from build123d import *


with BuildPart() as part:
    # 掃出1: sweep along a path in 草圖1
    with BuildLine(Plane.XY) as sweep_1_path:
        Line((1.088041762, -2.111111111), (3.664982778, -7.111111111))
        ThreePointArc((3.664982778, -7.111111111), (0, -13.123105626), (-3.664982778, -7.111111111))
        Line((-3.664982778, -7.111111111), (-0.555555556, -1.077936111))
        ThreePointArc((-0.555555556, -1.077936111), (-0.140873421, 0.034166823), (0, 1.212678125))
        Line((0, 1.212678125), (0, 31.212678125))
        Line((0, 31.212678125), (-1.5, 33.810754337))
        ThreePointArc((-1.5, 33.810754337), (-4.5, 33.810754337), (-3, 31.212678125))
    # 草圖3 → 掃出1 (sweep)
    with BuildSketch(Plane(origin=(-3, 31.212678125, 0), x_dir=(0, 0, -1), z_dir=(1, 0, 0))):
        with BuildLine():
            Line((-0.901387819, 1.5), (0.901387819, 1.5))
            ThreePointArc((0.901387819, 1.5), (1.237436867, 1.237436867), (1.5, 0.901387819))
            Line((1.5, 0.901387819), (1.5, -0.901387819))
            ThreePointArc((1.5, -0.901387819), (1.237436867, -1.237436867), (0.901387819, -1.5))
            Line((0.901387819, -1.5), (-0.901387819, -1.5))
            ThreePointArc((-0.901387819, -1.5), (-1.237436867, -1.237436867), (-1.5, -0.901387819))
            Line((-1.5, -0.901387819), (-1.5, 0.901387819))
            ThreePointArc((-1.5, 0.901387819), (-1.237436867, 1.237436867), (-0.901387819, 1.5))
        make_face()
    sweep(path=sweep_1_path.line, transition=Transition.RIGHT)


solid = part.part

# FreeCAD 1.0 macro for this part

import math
import FreeCAD as App
import Part
import Sketcher
from FreeCAD import Vector
Q = App.Units.Quantity

doc = App.newDocument("Part")
params = doc.addObject("Spreadsheet::Sheet", "Params")
for row, (alias, value) in enumerate([
    ("sketch1_radius", "1.75 mm"),
    ("sketch2_radius", "5 mm"),
    ("sketch2_height", "30 mm"),
    ("sketch2_length", "3 mm"),
    ("sketch2_height2", "5 mm"),
], start=1):
    params.set(f"A{row}", alias)
    params.set(f"B{row}", "=" + value)
    params.setAlias(f"B{row}", alias)

body = doc.addObject("PartDesign::Body", "Body")

# Sketch on YZ plane
sketch1 = body.newObject("Sketcher::SketchObject", "Sketch")
sketch1.AttachmentSupport = (doc.getObject("YZ_Plane"), [""])
sketch1.MapMode = "FlatFace"
sketch1.AttachmentOffset = App.Placement(Vector(0, 0, -3), App.Rotation())
sketch1.addGeometry([
    Part.LineSegment(Vector(32.712678, -0.901388, 0), Vector(32.712678, 0.901388, 0)),  # 0
    Part.ArcOfCircle(Part.Circle(Vector(31.212678, 0, 0), Vector(0, 0, 1), 1.75), math.radians(31.002719), math.radians(58.997281)),  # 1
    Part.LineSegment(Vector(32.114066, 1.5, 0), Vector(30.31129, 1.5, 0)),  # 2
    Part.ArcOfCircle(Part.Circle(Vector(31.212678, 0, 0), Vector(0, 0, 1), 1.75), math.radians(121.002719), math.radians(148.997281)),  # 3
    Part.LineSegment(Vector(29.712678, 0.901388, 0), Vector(29.712678, -0.901388, 0)),  # 4
    Part.ArcOfCircle(Part.Circle(Vector(31.212678, 0, 0), Vector(0, 0, 1), 1.75), math.radians(-148.997281), math.radians(-121.002719)),  # 5
    Part.LineSegment(Vector(30.31129, -1.5, 0), Vector(32.114066, -1.5, 0)),  # 6
    Part.ArcOfCircle(Part.Circle(Vector(31.212678, 0, 0), Vector(0, 0, 1), 1.75), math.radians(-58.997281), math.radians(-31.002719)),  # 7
], False)
sketch1.addConstraint([
    Sketcher.Constraint("Coincident", 0, 2, 1, 1),
    Sketcher.Constraint("Coincident", 1, 2, 2, 1),
    Sketcher.Constraint("Coincident", 2, 2, 3, 1),
    Sketcher.Constraint("Coincident", 3, 2, 4, 1),
    Sketcher.Constraint("Coincident", 4, 2, 5, 1),
    Sketcher.Constraint("Coincident", 5, 2, 6, 1),
    Sketcher.Constraint("Coincident", 6, 2, 7, 1),
    Sketcher.Constraint("Coincident", 7, 2, 0, 1),
    Sketcher.Constraint("Vertical", 0),
    Sketcher.Constraint("Horizontal", 2),
    Sketcher.Constraint("Vertical", 4),
    Sketcher.Constraint("Horizontal", 6),
    Sketcher.Constraint("Coincident", 3, 3, 1, 3),
    Sketcher.Constraint("Coincident", 5, 3, 1, 3),
    Sketcher.Constraint("Coincident", 7, 3, 1, 3),
    Sketcher.Constraint("Equal", 1, 3),
    Sketcher.Constraint("Equal", 3, 5),
    Sketcher.Constraint("Equal", 5, 7),
    Sketcher.Constraint("Symmetric", 2, 2, 5, 2, -1),
    Sketcher.Constraint("Horizontal", 0, 2, 3, 2),
    Sketcher.Constraint("Equal", 6, 0),
    Sketcher.Constraint("Radius", 1, 1.75),
    Sketcher.Constraint("DistanceY", -1, 1, 1, 2, 1.5),
    Sketcher.Constraint("DistanceX", -1, 1, 1, 3, 31.212678),
])
sketch1.setExpression("Constraints[21]", "Params.sketch1_radius")

# Sketch on XY plane
sketch2 = body.newObject("Sketcher::SketchObject", "Sketch001")
sketch2.AttachmentSupport = (doc.getObject("XY_Plane"), [""])
sketch2.MapMode = "FlatFace"
sketch2.addGeometry([
    Part.LineSegment(Vector(1.088042, -2.111111, 0), Vector(3.664983, -7.111111, 0)),  # 0
    Part.ArcOfCircle(Part.Circle(Vector(0, -9, 0), Vector(0, 0, 1), 4.123106), math.radians(152.733956), math.radians(387.266044)),  # 1
    Part.LineSegment(Vector(-3.664983, -7.111111, 0), Vector(-0.555556, -1.077936, 0)),  # 2
    Part.ArcOfCircle(Part.Circle(Vector(-5, 1.212678, 0), Vector(0, 0, 1), 5), math.radians(-27.266044), math.radians(0)),  # 3
    Part.LineSegment(Vector(0, 1.212678, 0), Vector(0, 31.212678, 0)),  # 4
    Part.LineSegment(Vector(0, 31.212678, 0), Vector(-1.5, 33.810754, 0)),  # 5
    Part.ArcOfCircle(Part.Circle(Vector(-3, 32.944729, 0), Vector(0, 0, 1), 1.732051), math.radians(30), math.radians(270)),  # 6
], False)
sketch2.addConstraint([
    Sketcher.Constraint("Tangent", 0, 2, 1, 2),
    Sketcher.Constraint("Tangent", 1, 1, 2, 1),
    Sketcher.Constraint("Tangent", 2, 2, 3, 1),
    Sketcher.Constraint("Tangent", 3, 2, 4, 1),
    Sketcher.Constraint("Coincident", 4, 2, 5, 1),
    Sketcher.Constraint("Tangent", 5, 2, 6, 1),
    Sketcher.Constraint("Vertical", 4),
    Sketcher.Constraint("Symmetric", 0, 2, 1, 1, -2),
    Sketcher.Constraint("PointOnObject", 3, 2, -2),
    Sketcher.Constraint("Horizontal", 4, 2, 6, 2),
    Sketcher.Constraint("Radius", 3, 5.0),
    Sketcher.Constraint("DistanceY", 4, 1, 4, 2, 30.0),
    Sketcher.Constraint("Angle", 5, Q("120 deg")),
    Sketcher.Constraint("Distance", 5, 3.0),
    Sketcher.Constraint("DistanceY", 1, 3, -1, 1, 9.0),
    Sketcher.Constraint("DistanceX", 6, 2, -1, 1, 3.0),
    Sketcher.Constraint("DistanceY", 0, 2, 0, 1, 5.0),
    Sketcher.Constraint("Distance", 0, 5.625),
    Sketcher.Constraint("Radius", 1, 4.123106),
])
sketch2.setExpression("Constraints[10]", "Params.sketch2_radius")
sketch2.setExpression("Constraints[11]", "Params.sketch2_height")
sketch2.setExpression("Constraints[13]", "Params.sketch2_length")
sketch2.setExpression("Constraints[16]", "Params.sketch2_height2")
doc.recompute()

additivepipe = body.newObject("PartDesign::AdditivePipe", "AdditivePipe")
additivepipe.Profile = sketch1
additivepipe.Spine = (sketch2, ["Edge1", "Edge2", "Edge3", "Edge4", "Edge5", "Edge6", "Edge7"])
additivepipe.Transition = "Right corner"

doc.recompute()
